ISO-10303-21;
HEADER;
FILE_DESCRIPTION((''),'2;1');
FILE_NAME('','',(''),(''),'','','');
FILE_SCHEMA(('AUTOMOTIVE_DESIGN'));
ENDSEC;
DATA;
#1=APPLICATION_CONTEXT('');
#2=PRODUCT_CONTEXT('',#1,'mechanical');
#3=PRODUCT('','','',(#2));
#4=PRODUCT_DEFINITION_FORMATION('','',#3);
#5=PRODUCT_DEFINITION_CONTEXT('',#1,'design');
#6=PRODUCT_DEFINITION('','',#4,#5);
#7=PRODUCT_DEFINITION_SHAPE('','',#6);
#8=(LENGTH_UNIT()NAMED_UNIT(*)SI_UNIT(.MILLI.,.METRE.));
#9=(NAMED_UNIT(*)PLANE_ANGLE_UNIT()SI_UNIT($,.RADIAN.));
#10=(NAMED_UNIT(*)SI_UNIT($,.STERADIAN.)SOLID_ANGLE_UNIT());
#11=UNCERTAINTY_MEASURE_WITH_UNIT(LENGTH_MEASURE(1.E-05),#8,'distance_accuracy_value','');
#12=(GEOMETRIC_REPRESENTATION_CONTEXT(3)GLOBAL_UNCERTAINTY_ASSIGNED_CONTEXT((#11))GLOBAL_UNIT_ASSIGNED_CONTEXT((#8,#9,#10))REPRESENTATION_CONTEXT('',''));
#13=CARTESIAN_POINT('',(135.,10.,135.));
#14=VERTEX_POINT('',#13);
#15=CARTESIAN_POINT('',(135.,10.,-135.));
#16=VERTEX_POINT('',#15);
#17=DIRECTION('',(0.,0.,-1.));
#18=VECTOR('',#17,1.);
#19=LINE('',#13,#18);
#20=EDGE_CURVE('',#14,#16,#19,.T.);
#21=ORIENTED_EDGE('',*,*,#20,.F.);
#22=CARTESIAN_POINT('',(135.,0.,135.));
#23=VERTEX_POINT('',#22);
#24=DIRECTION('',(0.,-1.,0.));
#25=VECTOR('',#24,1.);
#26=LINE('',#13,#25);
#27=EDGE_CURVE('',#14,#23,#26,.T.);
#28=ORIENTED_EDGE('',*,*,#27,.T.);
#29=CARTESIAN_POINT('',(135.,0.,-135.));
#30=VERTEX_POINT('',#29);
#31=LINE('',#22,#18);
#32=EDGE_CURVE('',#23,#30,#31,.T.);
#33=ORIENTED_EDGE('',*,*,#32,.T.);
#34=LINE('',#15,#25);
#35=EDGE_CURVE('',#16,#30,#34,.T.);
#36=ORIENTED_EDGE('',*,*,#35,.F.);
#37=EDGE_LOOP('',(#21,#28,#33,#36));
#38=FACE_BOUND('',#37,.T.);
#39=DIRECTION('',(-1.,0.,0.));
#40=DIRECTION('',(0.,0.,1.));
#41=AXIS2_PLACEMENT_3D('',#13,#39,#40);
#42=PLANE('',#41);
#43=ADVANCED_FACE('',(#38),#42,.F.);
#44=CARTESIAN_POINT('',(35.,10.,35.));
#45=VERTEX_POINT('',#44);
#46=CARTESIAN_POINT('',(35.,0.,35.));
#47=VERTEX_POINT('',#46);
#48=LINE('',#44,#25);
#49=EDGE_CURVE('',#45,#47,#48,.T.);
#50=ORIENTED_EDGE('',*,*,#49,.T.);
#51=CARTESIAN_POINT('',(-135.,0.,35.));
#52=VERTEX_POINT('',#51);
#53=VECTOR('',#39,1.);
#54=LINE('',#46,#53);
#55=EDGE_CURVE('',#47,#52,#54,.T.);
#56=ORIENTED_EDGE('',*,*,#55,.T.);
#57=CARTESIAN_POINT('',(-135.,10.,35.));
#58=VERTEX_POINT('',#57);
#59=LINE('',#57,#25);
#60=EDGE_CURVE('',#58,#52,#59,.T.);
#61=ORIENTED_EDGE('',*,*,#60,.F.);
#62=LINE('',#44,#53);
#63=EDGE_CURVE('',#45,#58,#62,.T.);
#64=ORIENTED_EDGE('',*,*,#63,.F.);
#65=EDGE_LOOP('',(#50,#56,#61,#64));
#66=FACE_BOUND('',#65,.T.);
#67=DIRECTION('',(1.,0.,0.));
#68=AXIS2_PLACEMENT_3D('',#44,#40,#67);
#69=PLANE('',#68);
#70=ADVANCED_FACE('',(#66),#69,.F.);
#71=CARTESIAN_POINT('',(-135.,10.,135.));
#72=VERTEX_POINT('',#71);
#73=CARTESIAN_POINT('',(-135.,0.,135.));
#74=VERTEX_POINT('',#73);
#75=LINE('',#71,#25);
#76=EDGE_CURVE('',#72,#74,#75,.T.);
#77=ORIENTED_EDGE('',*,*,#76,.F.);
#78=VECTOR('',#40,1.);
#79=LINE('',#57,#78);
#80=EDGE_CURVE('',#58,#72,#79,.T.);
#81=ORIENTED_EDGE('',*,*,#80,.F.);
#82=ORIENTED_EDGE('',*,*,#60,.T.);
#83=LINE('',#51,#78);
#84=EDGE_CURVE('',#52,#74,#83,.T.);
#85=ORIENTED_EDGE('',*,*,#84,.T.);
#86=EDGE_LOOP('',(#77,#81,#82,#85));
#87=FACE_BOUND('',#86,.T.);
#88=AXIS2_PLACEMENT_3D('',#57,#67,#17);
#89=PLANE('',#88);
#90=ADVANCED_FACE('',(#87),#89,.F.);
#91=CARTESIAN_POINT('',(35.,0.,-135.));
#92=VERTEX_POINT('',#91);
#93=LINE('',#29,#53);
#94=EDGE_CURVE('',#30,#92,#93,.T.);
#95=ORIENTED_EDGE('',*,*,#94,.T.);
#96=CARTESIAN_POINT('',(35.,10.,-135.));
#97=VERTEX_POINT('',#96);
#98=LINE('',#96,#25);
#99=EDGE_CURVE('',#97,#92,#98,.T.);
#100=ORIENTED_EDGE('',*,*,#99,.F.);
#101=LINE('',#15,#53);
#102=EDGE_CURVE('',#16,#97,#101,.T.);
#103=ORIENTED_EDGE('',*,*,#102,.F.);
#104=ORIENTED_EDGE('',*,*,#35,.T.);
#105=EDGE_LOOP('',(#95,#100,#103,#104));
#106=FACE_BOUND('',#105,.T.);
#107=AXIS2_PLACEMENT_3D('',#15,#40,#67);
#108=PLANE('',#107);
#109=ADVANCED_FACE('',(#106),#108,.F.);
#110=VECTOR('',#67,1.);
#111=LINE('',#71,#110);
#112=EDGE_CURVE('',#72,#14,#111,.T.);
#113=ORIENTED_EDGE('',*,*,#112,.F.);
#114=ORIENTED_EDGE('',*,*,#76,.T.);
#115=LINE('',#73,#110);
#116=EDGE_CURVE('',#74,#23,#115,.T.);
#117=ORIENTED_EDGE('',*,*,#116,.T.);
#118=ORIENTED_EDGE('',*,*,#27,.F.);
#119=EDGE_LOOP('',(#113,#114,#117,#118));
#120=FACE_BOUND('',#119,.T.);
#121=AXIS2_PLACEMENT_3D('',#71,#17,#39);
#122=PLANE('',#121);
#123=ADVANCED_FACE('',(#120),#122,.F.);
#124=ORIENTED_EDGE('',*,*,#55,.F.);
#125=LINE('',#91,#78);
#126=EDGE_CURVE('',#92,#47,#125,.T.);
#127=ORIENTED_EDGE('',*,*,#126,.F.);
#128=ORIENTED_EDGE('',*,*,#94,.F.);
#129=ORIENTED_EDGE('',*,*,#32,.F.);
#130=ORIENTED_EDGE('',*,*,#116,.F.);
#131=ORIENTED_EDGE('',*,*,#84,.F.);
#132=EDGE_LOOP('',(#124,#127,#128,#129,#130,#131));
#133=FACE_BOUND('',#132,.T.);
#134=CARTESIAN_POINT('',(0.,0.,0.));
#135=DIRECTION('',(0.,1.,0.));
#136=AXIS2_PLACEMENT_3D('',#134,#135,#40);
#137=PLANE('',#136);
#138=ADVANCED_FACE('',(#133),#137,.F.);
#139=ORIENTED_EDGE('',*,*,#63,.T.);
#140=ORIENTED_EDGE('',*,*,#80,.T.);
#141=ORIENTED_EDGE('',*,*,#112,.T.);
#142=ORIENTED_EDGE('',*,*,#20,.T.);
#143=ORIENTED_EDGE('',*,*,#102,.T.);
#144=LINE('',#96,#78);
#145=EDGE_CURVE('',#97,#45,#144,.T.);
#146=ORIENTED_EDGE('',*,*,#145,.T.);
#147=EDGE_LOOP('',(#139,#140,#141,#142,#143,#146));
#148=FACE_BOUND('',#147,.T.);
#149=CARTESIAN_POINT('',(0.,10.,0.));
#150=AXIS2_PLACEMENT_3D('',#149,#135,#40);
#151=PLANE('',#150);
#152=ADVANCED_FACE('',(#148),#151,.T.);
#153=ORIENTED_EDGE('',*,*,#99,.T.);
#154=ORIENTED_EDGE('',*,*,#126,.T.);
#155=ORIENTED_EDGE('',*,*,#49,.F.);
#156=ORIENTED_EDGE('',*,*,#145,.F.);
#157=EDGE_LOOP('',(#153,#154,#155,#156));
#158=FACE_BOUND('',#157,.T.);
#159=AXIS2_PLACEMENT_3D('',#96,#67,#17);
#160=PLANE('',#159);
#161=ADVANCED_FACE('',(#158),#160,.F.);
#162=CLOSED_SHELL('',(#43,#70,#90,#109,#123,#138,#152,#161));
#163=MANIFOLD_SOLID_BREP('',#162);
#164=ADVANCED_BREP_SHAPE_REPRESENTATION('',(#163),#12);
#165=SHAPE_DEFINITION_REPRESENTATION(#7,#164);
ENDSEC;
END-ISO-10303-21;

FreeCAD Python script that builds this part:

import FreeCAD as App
import Part
import Sketcher

V = App.Vector


def add_polygon(sketch, points):
    """Adds a closed chain of lines whose ends are joined by coincident constraints."""
    first, n = sketch.GeometryCount, len(points)
    for a, b in zip(points, points[1:] + points[:1]):
        sketch.addGeometry(Part.LineSegment(App.Vector(*a, 0), App.Vector(*b, 0)), False)
    for i in range(n):
        sketch.addConstraint(Sketcher.Constraint("Coincident", first + i, 2, first + (i + 1) % n, 1))

doc = App.newDocument("Part")
params = doc.addObject("Spreadsheet::Sheet", "Params")
for row, (alias, value) in enumerate([
    ("sketch1_width", "270 mm"),
    ("sketch1_width2", "100 mm"),
    ("pad1_length", "10 mm"),
], start=1):
    params.set(f"A{row}", alias)
    params.set(f"B{row}", "=" + value)
    params.setAlias(f"B{row}", alias)

body = doc.addObject("PartDesign::Body", "Body")

# Sketch on XZ plane
sketch1 = doc.addObject("Sketcher::SketchObject", "Sketch")
body.addObject(sketch1)
sketch1.AttachmentSupport = (doc.XZ_Plane, [""])
sketch1.MapMode = "FlatFace"
add_polygon(sketch1, [(-135, 135), (135, 135), (135, -135), (35, -135), (35, 35), (-135, 35)])  # lines 0-5
sketch1.addConstraint([
    Sketcher.Constraint("Horizontal", 0),
    Sketcher.Constraint("Vertical", 1),
    Sketcher.Constraint("Horizontal", 2),
    Sketcher.Constraint("Vertical", 3),
    Sketcher.Constraint("Horizontal", 4),
    Sketcher.Constraint("Vertical", 5),
    Sketcher.Constraint("Symmetric", 1, 2, 5, 2, -1, 1),
    Sketcher.Constraint("Equal", 0, 1),
    Sketcher.Constraint("Equal", 4, 3),
    Sketcher.Constraint("DistanceX", 0, 1, 0, 2, 270.0),
    Sketcher.Constraint("DistanceX", 2, 2, 2, 1, 100.0),
])
sketch1.setExpression("Constraints[15]", "Params.sketch1_width")
sketch1.setExpression("Constraints[16]", "Params.sketch1_width2")
pad1 = doc.addObject("PartDesign::Pad", "Pad")
body.addObject(pad1)
pad1.Profile = sketch1
pad1.setExpression("Length", "Params.pad1_length")
pad1.Reversed = True

doc.recompute()
